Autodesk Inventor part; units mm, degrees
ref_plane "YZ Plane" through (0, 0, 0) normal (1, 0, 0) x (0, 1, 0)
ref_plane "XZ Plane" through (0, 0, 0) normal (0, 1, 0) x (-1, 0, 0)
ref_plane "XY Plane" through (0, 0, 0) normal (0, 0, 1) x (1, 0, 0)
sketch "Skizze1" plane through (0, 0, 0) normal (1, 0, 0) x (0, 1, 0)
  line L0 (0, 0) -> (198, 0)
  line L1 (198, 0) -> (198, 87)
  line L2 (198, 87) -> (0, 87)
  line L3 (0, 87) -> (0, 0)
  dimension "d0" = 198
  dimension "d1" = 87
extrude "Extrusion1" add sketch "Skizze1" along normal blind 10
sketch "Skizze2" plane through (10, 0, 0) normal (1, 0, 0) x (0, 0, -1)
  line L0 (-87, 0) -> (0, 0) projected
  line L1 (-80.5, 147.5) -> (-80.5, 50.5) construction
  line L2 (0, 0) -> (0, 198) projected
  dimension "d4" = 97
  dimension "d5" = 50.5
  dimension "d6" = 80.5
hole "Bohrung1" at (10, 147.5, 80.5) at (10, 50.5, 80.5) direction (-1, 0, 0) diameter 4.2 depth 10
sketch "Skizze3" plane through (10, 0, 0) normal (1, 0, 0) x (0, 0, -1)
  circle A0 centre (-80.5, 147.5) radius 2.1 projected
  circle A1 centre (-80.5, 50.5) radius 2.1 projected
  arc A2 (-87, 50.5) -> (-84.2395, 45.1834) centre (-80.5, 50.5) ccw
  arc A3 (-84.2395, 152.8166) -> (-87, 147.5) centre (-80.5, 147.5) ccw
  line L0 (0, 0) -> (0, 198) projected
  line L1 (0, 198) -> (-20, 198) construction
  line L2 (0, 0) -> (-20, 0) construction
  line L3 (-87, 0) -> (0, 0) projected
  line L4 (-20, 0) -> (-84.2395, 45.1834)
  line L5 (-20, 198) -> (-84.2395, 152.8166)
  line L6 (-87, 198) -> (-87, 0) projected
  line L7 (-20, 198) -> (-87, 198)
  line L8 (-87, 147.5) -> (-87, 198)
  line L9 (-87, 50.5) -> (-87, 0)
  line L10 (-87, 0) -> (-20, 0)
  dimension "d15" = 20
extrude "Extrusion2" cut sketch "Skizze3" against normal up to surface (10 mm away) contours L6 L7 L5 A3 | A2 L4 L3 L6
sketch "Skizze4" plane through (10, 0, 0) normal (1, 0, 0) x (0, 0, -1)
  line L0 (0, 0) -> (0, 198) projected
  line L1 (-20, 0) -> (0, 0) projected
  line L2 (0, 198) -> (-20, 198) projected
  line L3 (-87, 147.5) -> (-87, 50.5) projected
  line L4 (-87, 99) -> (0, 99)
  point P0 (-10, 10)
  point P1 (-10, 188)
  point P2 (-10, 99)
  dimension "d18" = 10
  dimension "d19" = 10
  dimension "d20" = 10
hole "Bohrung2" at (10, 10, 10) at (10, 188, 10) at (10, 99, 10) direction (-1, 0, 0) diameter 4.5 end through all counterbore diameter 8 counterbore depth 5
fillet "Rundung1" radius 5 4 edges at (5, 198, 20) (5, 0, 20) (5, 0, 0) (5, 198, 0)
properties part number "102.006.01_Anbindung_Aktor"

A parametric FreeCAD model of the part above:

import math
import FreeCAD as App
import Part
import Sketcher

V = App.Vector
Q = App.Units.Quantity


def edges_at(feature, points):
    """Names of the edges that pass closest to the given points."""
    edges = feature.Shape.Edges
    near = lambda p: min(range(len(edges)), key=lambda i: edges[i].distToShape(Part.Vertex(*p))[0])
    return sorted({f"Edge{near(p) + 1}" for p in points})

doc = App.newDocument("Part")
body = doc.addObject("PartDesign::Body", "Body")

# Sketch on YZ plane
sketch1 = body.newObject("Sketcher::SketchObject", "Sketch")
sketch1.AttachmentSupport = (doc.getObject("YZ_Plane"), [""])
sketch1.MapMode = "FlatFace"
sketch1.addGeometry([
    Part.LineSegment(V(0, 87, 0), V(0, 0, 0)),
    Part.LineSegment(V(0, 0, 0), V(198, 0, 0)),
    Part.LineSegment(V(198, 0, 0), V(198, 87, 0)),
    Part.LineSegment(V(198, 87, 0), V(0, 87, 0)),
], False)
sketch1.addConstraint([
    Sketcher.Constraint("Coincident", 0, 2, 1, 1),
    Sketcher.Constraint("Coincident", 1, 2, 2, 1),
    Sketcher.Constraint("Coincident", 2, 2, 3, 1),
    Sketcher.Constraint("Coincident", 3, 2, 0, 1),
    Sketcher.Constraint("Vertical", 0),
    Sketcher.Constraint("Horizontal", 1),
    Sketcher.Constraint("Vertical", 2),
    Sketcher.Constraint("Horizontal", 3),
    Sketcher.Constraint("Coincident", 0, 2, -1, 1),
    Sketcher.Constraint("DistanceX", 1, 1, 1, 2, Q("198 mm")),
    Sketcher.Constraint("DistanceY", 0, 2, 0, 1, Q("87 mm")),
])
pad1 = body.newObject("PartDesign::Pad", "Pad")
pad1.Profile = sketch1
pad1.Length = 10

# Sketch on YZ plane
sketch2 = body.newObject("Sketcher::SketchObject", "Sketch001")
sketch2.AttachmentSupport = (doc.getObject("YZ_Plane"), [""])
sketch2.MapMode = "FlatFace"
sketch2.AttachmentOffset = App.Placement(V(0, 0, 10), App.Rotation())
sketch2.addGeometry([
    Part.Circle(V(147.5, 80.5, 0), V(0, 0, 1), 2.1),
    Part.Circle(V(50.5, 80.5, 0), V(0, 0, 1), 2.1),
], False)
sketch2.addConstraint([
    Sketcher.Constraint("Equal", 0, 1),
    Sketcher.Constraint("Horizontal", 0, 3, 1, 3),
    Sketcher.Constraint("Diameter", 0, Q("4.2 mm")),
    Sketcher.Constraint("DistanceX", 1, 3, 0, 3, Q("97 mm")),
    Sketcher.Constraint("DistanceX", -1, 1, 0, 3, Q("147.5 mm")),
    Sketcher.Constraint("DistanceY", -1, 1, 0, 3, Q("80.5 mm")),
])
doc.recompute()
hole = body.newObject("PartDesign::Hole", "Hole")
hole.Profile = sketch2
hole.ThreadType = "None"
hole.Diameter = 4.2
hole.DepthType = "Dimension"
hole.Depth = 10
hole.DrillPoint = "Flat"

# Sketch on YZ plane
sketch3 = body.newObject("Sketcher::SketchObject", "Sketch002")
sketch3.AttachmentSupport = (doc.getObject("YZ_Plane"), [""])
sketch3.MapMode = "FlatFace"
sketch3.AttachmentOffset = App.Placement(V(0, 0, 10), App.Rotation())
sketch3.addGeometry([
    Part.LineSegment(V(198, 87, 0), V(148, 87, 0)),  # 0
    Part.ArcOfCircle(Part.Circle(V(148, 80, 0), V(0, 0, 1), 7), math.radians(35), math.radians(90)),  # 1
    Part.LineSegment(V(153, 84, 0), V(198, 20, 0)),  # 2
    Part.LineSegment(V(198, 20, 0), V(198, 87, 0)),  # 3
    Part.ArcOfCircle(Part.Circle(V(50, 80, 0), V(0, 0, 1), 6), math.radians(90), math.radians(145)),  # 4
    Part.LineSegment(V(50, 87, 0), V(0, 87, 0)),  # 5
    Part.LineSegment(V(0, 87, 0), V(0, 20, 0)),  # 6
    Part.LineSegment(V(0, 20, 0), V(45, 84, 0)),  # 7
], False)
sketch3.addConstraint([
    Sketcher.Constraint("Tangent", 0, 2, 1, 2),
    Sketcher.Constraint("Tangent", 1, 1, 2, 1),
    Sketcher.Constraint("Coincident", 2, 2, 3, 1),
    Sketcher.Constraint("Coincident", 3, 2, 0, 1),
    Sketcher.Constraint("Tangent", 4, 1, 5, 1),
    Sketcher.Constraint("Coincident", 5, 2, 6, 1),
    Sketcher.Constraint("Coincident", 6, 2, 7, 1),
    Sketcher.Constraint("Tangent", 7, 2, 4, 2),
    Sketcher.Constraint("Horizontal", 0),
    Sketcher.Constraint("Vertical", 3),
    Sketcher.Constraint("Horizontal", 5),
    Sketcher.Constraint("Vertical", 6),
    Sketcher.Constraint("Equal", 1, 4),
    Sketcher.Constraint("PointOnObject", 5, 2, -2),
    Sketcher.Constraint("Horizontal", 1, 3, 4, 3),
    Sketcher.Constraint("Horizontal", 2, 2, 6, 2),
    Sketcher.Constraint("Horizontal", 1, 1, 7, 2),
    Sketcher.Constraint("DistanceY", -1, 1, 2, 2, Q("20 mm")),
    Sketcher.Constraint("Radius", 1, Q("6.5 mm")),
    Sketcher.Constraint("DistanceY", 3, 1, 3, 2, Q("67 mm")),
    Sketcher.Constraint("DistanceX", 0, 2, 0, 1, Q("50.5 mm")),
    Sketcher.Constraint("DistanceX", -1, 1, 2, 2, Q("198 mm")),
])
pocket1 = body.newObject("PartDesign::Pocket", "Pocket")
pocket1.Profile = sketch3
pocket1.Length = 10

# Sketch on YZ plane
sketch4 = body.newObject("Sketcher::SketchObject", "Sketch003")
sketch4.AttachmentSupport = (doc.getObject("YZ_Plane"), [""])
sketch4.MapMode = "FlatFace"
sketch4.AttachmentOffset = App.Placement(V(0, 0, 10), App.Rotation())
sketch4.addGeometry([
    Part.Circle(V(10, 10, 0), V(0, 0, 1), 2.2),
    Part.Circle(V(188, 10, 0), V(0, 0, 1), 2.2),
    Part.Circle(V(99, 10, 0), V(0, 0, 1), 2.2),
], False)
sketch4.addConstraint([
    Sketcher.Constraint("Equal", 0, 1),
    Sketcher.Constraint("Equal", 1, 2),
    Sketcher.Constraint("Horizontal", 0, 3, 1, 3),
    Sketcher.Constraint("Horizontal", 1, 3, 2, 3),
    Sketcher.Constraint("Diameter", 0, Q("4.5 mm")),
    Sketcher.Constraint("DistanceX", -1, 1, 0, 3, Q("10 mm")),
    Sketcher.Constraint("DistanceY", -1, 1, 0, 3, Q("10 mm")),
    Sketcher.Constraint("DistanceX", -1, 1, 1, 3, Q("188 mm")),
    Sketcher.Constraint("DistanceX", -1, 1, 2, 3, Q("99 mm")),
])
doc.recompute()
hole2 = body.newObject("PartDesign::Hole", "Hole001")
hole2.Profile = sketch4
hole2.ThreadType = "None"
hole2.Diameter = 4.5
hole2.DepthType = "ThroughAll"
hole2.HoleCutType = "Counterbore"
hole2.HoleCutDiameter = 8
hole2.HoleCutDepth = 5
doc.recompute()

fillet = body.newObject("PartDesign::Fillet", "Fillet")
fillet.Base = (hole2, edges_at(hole2, [
    (5, 198, 20),
    (5, 0, 20),
    (5, 0, 0),
    (5, 198, 0),
]))
fillet.Radius = 5

doc.recompute()
